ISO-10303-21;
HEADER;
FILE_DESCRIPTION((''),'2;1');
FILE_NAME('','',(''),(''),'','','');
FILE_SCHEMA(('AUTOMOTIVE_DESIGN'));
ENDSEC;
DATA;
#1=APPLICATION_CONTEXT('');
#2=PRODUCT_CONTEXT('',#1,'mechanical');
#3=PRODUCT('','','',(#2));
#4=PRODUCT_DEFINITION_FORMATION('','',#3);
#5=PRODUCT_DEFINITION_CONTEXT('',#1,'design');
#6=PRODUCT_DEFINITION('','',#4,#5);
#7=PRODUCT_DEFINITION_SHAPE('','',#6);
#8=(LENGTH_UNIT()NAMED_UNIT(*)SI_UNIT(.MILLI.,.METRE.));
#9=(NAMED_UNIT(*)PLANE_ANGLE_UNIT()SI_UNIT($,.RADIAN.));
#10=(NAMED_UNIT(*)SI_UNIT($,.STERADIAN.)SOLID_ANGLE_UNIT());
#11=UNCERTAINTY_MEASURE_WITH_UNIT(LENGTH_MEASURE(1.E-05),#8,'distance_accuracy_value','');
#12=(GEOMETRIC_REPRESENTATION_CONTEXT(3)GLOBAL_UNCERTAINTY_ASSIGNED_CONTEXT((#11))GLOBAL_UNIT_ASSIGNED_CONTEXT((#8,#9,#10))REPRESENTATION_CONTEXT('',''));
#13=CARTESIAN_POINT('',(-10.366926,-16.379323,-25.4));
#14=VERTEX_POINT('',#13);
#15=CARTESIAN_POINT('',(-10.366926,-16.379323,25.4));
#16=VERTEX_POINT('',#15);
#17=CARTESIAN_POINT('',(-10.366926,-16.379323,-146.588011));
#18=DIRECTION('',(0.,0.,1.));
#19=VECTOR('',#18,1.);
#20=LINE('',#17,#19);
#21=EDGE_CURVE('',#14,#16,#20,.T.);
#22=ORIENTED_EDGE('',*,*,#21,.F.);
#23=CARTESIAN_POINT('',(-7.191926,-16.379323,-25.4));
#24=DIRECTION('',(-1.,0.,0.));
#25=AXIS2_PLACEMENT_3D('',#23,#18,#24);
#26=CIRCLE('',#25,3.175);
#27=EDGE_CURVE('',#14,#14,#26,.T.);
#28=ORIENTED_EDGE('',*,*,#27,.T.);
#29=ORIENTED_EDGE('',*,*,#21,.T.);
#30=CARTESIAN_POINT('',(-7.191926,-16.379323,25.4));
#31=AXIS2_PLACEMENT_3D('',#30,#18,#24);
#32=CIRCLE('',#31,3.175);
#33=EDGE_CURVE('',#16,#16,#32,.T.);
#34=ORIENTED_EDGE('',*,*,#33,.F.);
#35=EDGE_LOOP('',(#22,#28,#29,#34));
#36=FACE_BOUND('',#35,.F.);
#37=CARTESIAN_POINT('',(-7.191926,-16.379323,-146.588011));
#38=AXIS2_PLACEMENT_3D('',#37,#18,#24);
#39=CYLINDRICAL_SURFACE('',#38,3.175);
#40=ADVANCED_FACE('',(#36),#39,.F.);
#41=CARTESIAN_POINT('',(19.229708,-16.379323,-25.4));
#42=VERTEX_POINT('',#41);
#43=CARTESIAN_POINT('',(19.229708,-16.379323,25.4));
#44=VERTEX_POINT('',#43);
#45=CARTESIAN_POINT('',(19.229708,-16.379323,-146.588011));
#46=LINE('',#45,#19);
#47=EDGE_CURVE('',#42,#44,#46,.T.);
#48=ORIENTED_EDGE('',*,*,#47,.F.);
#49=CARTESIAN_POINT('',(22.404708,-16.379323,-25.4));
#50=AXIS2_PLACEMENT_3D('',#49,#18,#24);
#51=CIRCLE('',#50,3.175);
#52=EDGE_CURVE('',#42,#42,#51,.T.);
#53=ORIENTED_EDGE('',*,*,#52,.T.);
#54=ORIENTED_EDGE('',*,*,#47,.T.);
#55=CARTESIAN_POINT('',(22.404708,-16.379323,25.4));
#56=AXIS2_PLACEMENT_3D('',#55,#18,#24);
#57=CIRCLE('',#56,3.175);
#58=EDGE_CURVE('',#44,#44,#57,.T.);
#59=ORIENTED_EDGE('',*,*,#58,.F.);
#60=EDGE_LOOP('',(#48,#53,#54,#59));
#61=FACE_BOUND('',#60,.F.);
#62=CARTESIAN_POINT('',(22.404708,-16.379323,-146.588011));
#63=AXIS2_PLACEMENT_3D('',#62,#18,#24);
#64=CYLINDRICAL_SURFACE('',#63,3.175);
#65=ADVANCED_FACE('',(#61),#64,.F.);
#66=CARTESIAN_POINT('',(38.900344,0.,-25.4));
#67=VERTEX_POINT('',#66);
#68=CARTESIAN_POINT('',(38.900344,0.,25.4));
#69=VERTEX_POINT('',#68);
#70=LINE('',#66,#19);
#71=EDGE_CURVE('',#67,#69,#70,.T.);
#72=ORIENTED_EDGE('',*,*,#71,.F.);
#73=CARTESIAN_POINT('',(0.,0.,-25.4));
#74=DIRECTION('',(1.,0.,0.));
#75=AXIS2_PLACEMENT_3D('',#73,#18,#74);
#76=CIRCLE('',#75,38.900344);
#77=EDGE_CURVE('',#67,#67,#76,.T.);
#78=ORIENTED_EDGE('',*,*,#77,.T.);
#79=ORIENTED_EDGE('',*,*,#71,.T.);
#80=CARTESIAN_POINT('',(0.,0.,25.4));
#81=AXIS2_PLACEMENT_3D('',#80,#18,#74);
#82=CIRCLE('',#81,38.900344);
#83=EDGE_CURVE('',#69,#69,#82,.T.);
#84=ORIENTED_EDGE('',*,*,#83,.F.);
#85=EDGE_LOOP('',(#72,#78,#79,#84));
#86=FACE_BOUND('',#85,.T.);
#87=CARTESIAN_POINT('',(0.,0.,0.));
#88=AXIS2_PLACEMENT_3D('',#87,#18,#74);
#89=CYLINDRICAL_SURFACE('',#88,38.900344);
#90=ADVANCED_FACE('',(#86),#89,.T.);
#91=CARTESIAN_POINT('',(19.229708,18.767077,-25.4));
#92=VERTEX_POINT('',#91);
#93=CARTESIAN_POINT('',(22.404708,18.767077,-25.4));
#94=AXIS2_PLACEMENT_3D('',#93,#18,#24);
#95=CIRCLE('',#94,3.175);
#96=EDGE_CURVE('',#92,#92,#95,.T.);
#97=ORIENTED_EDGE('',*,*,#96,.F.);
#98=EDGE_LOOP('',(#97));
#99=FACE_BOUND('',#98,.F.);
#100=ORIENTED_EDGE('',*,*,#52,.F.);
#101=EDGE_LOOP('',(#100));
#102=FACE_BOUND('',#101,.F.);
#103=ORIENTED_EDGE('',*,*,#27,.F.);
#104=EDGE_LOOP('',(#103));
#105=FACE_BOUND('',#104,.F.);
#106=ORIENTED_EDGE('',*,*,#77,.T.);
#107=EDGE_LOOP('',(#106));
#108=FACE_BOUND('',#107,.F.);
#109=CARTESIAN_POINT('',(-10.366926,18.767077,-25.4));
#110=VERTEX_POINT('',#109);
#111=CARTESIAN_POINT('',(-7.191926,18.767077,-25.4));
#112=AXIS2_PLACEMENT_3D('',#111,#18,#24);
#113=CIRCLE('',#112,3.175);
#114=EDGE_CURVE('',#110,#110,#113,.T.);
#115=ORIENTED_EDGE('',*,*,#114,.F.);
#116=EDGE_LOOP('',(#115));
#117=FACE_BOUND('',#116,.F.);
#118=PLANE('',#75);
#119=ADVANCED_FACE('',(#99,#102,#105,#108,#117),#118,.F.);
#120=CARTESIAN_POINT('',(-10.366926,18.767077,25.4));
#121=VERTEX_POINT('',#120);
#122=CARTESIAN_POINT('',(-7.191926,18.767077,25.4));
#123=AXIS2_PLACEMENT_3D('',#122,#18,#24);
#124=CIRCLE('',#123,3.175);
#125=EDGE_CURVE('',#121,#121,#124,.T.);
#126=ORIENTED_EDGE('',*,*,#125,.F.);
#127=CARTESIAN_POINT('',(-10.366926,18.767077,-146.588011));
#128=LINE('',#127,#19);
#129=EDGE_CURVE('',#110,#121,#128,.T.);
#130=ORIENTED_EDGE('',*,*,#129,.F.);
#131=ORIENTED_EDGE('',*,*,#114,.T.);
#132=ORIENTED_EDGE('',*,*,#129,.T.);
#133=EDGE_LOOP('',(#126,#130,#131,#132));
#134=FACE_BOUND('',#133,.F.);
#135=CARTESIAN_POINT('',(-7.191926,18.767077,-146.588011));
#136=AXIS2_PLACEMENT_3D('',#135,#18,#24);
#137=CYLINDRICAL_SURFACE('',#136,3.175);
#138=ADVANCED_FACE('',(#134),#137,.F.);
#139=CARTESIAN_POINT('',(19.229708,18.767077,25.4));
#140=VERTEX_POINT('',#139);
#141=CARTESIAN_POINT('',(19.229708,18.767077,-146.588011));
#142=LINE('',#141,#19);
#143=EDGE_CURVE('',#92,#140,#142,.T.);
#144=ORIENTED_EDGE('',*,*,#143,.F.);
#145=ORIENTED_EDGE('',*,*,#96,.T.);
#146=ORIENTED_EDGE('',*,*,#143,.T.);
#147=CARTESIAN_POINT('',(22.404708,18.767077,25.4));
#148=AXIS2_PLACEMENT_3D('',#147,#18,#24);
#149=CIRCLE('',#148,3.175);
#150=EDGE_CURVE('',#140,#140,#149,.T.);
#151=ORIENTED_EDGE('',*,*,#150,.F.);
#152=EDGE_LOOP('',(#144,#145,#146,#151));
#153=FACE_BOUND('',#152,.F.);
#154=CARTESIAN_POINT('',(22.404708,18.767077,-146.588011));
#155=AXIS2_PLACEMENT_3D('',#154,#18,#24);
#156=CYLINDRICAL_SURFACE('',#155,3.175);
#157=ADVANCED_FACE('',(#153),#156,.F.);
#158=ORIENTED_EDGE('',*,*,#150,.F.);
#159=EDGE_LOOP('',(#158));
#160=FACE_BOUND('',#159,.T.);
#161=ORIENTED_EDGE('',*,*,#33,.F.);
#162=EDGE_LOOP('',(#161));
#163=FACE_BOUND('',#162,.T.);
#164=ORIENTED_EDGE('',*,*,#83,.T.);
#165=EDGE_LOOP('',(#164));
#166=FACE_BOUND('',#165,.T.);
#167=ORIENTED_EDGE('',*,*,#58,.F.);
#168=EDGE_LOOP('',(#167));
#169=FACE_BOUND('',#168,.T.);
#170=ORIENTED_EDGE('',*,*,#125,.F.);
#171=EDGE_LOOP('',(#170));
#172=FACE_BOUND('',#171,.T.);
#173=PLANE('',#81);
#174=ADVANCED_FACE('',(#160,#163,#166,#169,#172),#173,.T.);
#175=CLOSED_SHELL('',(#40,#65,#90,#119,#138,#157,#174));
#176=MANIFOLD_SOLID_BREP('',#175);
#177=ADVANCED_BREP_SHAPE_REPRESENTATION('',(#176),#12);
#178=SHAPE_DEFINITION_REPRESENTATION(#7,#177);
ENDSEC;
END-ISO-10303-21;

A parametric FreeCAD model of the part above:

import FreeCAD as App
import Part
import Sketcher
from FreeCAD import Vector
Q = App.Units.Quantity

doc = App.newDocument("Part")
body = doc.addObject("PartDesign::Body", "Body")

sketch1 = doc.addObject("Sketcher::SketchObject", "Sketch")
body.addObject(sketch1)
sketch1.AttachmentSupport = (doc.XY_Plane, [""])
sketch1.MapMode = "FlatFace"
sketch1.addGeometry(Part.Circle(Vector(0, 0, 0), Vector(0, 0, 1), 38.900344), False)
sketch1.addConstraint(Sketcher.Constraint("Coincident", 0, 3, -1, 1))
sketch1.addConstraint(Sketcher.Constraint("Diameter", 0, 77.800688))
pad1 = doc.addObject("PartDesign::Pad", "Pad")
body.addObject(pad1)
pad1.Profile = sketch1
pad1.Type = "TwoLengths"
pad1.Length = Q("1 in")
pad1.Length2 = Q("1 in")

sketch2 = doc.addObject("Sketcher::SketchObject", "Sketch001")
body.addObject(sketch2)
sketch2.AttachmentSupport = (doc.XY_Plane, [""])
sketch2.MapMode = "FlatFace"
sketch2.AttachmentOffset = App.Placement(Vector(0, 0, -1 * 25.4), App.Rotation())
sketch2.addGeometry(Part.Circle(Vector(22.404708, -16.379323, 0), Vector(0, 0, 1), 3.175), False)
sketch2.addGeometry(Part.Circle(Vector(-7.191926, 18.767077, 0), Vector(0, 0, 1), 3.175), False)
sketch2.addGeometry(Part.Circle(Vector(-7.191926, -16.379323, 0), Vector(0, 0, 1), 3.175), False)
sketch2.addGeometry(Part.Circle(Vector(22.404708, 18.767077, 0), Vector(0, 0, 1), 3.175), False)
sketch2.addGeometry(Part.Circle(Vector(22.404708, -16.379323, 0), Vector(0, 0, 1), 3.175), False)
sketch2.addGeometry(Part.Circle(Vector(-7.191926, 18.767077, 0), Vector(0, 0, 1), 3.175), False)
sketch2.addGeometry(Part.Circle(Vector(22.404708, 18.767077, 0), Vector(0, 0, 1), 3.175), False)
sketch2.addGeometry(Part.Circle(Vector(-7.191926, -16.379323, 0), Vector(0, 0, 1), 3.175), False)
sketch2.addConstraint(Sketcher.Constraint("Coincident", 4, 3, 0, 3))
sketch2.addConstraint(Sketcher.Constraint("Coincident", 5, 3, 1, 3))
sketch2.addConstraint(Sketcher.Constraint("Coincident", 6, 3, 3, 3))
sketch2.addConstraint(Sketcher.Constraint("Coincident", 7, 3, 2, 3))
sketch2.addConstraint(Sketcher.Constraint("Equal", 0, 1))
sketch2.addConstraint(Sketcher.Constraint("Equal", 1, 2))
sketch2.addConstraint(Sketcher.Constraint("Equal", 2, 3))
sketch2.addConstraint(Sketcher.Constraint("Equal", 3, 4))
sketch2.addConstraint(Sketcher.Constraint("Equal", 4, 5))
sketch2.addConstraint(Sketcher.Constraint("Equal", 5, 6))
sketch2.addConstraint(Sketcher.Constraint("Equal", 6, 7))
sketch2.addConstraint(Sketcher.Constraint("Horizontal", 0, 3, 2, 3))
sketch2.addConstraint(Sketcher.Constraint("Horizontal", 1, 3, 3, 3))
sketch2.addConstraint(Sketcher.Constraint("Vertical", 1, 3, 2, 3))
sketch2.addConstraint(Sketcher.Constraint("Vertical", 0, 3, 3, 3))
sketch2.addConstraint(Sketcher.Constraint("Diameter", 0, Q("0.25 in")))
sketch2.addConstraint(Sketcher.Constraint("DistanceY", 0, 3, 1, 3, 35.1464))
sketch2.addConstraint(Sketcher.Constraint("DistanceX", -1, 1, 0, 3, 22.404708))
sketch2.addConstraint(Sketcher.Constraint("DistanceY", 0, 3, -1, 1, 16.379323))
sketch2.addConstraint(Sketcher.Constraint("DistanceX", 1, 3, -1, 1, 7.191926))
doc.recompute()
hole = doc.addObject("PartDesign::Hole", "Hole")
body.addObject(hole)
hole.Profile = sketch2
hole.ThreadType = "None"
hole.Diameter = Q("0.25 in")
hole.DepthType = "ThroughAll"
hole.Reversed = True

doc.recompute()
